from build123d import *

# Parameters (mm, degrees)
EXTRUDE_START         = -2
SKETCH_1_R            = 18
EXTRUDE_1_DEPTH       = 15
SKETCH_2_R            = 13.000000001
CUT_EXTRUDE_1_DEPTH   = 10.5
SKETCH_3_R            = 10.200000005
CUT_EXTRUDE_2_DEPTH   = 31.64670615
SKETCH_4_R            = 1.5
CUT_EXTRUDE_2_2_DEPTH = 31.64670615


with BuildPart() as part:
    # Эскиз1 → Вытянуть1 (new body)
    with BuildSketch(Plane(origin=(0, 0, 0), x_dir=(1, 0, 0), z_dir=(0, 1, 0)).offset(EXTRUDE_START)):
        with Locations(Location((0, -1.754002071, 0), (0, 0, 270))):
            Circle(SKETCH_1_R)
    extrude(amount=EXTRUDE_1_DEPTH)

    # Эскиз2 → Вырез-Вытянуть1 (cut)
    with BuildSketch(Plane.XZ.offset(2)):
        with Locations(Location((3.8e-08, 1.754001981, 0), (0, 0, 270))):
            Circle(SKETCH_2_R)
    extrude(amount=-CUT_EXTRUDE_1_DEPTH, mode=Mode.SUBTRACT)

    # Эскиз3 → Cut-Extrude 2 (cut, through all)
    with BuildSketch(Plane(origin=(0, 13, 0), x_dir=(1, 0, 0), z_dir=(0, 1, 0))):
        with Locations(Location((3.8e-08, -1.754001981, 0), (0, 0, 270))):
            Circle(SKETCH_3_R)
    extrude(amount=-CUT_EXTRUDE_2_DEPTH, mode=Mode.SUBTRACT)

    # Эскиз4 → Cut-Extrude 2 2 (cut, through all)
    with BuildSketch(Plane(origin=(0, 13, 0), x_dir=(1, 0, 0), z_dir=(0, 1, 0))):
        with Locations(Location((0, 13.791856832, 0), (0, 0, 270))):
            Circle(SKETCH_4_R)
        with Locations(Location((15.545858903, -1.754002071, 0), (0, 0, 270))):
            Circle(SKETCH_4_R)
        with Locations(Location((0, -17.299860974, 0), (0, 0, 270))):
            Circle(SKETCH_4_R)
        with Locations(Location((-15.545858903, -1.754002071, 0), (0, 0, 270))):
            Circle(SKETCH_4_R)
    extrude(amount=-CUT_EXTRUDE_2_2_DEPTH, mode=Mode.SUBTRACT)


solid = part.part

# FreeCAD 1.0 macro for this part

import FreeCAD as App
import Part
import Sketcher

doc = App.newDocument("Part")
body = doc.addObject("PartDesign::Body", "Body")

# Sketch on XZ plane
sketch1 = body.newObject("Sketcher::SketchObject", "Sketch")
sketch1.AttachmentSupport = (doc.getObject("XZ_Plane"), [""])
sketch1.MapMode = "FlatFace"
sketch1.AttachmentOffset = App.Placement(App.Vector(0, 0, 2), App.Rotation())
sketch1.addGeometry(Part.Circle(App.Vector(0, 2, 0), App.Vector(0, 0, 1), 18), False)
sketch1.addConstraint(Sketcher.Constraint("PointOnObject", 0, 3, -2))
sketch1.addConstraint(Sketcher.Constraint("Diameter", 0, 36.0))
sketch1.addConstraint(Sketcher.Constraint("DistanceY", -1, 1, 0, 3, 1.754002))
pad1 = body.newObject("PartDesign::Pad", "Pad")
pad1.Profile = sketch1
pad1.Length = 15
pad1.Reversed = True

# Sketch on XZ plane
sketch2 = body.newObject("Sketcher::SketchObject", "Sketch001")
sketch2.AttachmentSupport = (doc.getObject("XZ_Plane"), [""])
sketch2.MapMode = "FlatFace"
sketch2.AttachmentOffset = App.Placement(App.Vector(0, 0, 2), App.Rotation())
sketch2.addGeometry(Part.Circle(App.Vector(0, 2, 0), App.Vector(0, 0, 1), 13), False)
sketch2.addConstraint(Sketcher.Constraint("PointOnObject", 0, 3, -2))
sketch2.addConstraint(Sketcher.Constraint("Diameter", 0, 26.0))
sketch2.addConstraint(Sketcher.Constraint("DistanceY", -1, 1, 0, 3, 1.754002))
pocket1 = body.newObject("PartDesign::Pocket", "Pocket")
pocket1.Profile = sketch2
pocket1.Length = 10.5

# Sketch on XZ plane
sketch3 = body.newObject("Sketcher::SketchObject", "Sketch002")
sketch3.AttachmentSupport = (doc.getObject("XZ_Plane"), [""])
sketch3.MapMode = "FlatFace"
sketch3.AttachmentOffset = App.Placement(App.Vector(0, 0, -13), App.Rotation())
sketch3.addGeometry(Part.Circle(App.Vector(0, 2, 0), App.Vector(0, 0, 1), 10), False)
sketch3.addConstraint(Sketcher.Constraint("PointOnObject", 0, 3, -2))
sketch3.addConstraint(Sketcher.Constraint("Diameter", 0, 20.4))
sketch3.addConstraint(Sketcher.Constraint("DistanceY", -1, 1, 0, 3, 1.754002))
pocket2 = body.newObject("PartDesign::Pocket", "Pocket001")
pocket2.Profile = sketch3
pocket2.Type = "ThroughAll"
pocket2.Reversed = True

# Sketch on XZ plane
sketch4 = body.newObject("Sketcher::SketchObject", "Sketch003")
sketch4.AttachmentSupport = (doc.getObject("XZ_Plane"), [""])
sketch4.MapMode = "FlatFace"
sketch4.AttachmentOffset = App.Placement(App.Vector(0, 0, -13), App.Rotation())
sketch4.addGeometry(Part.Circle(App.Vector(0, -13.8, 0), App.Vector(0, 0, 1), 1.5), False)
sketch4.addGeometry(Part.Circle(App.Vector(15.5, 1.8, 0), App.Vector(0, 0, 1), 1.5), False)
sketch4.addGeometry(Part.Circle(App.Vector(0, 17.3, 0), App.Vector(0, 0, 1), 1.5), False)
sketch4.addGeometry(Part.Circle(App.Vector(-15.5, 1.8, 0), App.Vector(0, 0, 1), 1.5), False)
sketch4.addConstraint(Sketcher.Constraint("Equal", 0, 1))
sketch4.addConstraint(Sketcher.Constraint("Equal", 1, 2))
sketch4.addConstraint(Sketcher.Constraint("Equal", 2, 3))
sketch4.addConstraint(Sketcher.Constraint("Symmetric", 1, 3, 3, 3, -2))
sketch4.addConstraint(Sketcher.Constraint("PointOnObject", 0, 3, -2))
sketch4.addConstraint(Sketcher.Constraint("PointOnObject", 2, 3, -2))
sketch4.addConstraint(Sketcher.Constraint("Diameter", 0, 3.0))
sketch4.addConstraint(Sketcher.Constraint("DistanceX", -1, 1, 1, 3, 15.545859))
sketch4.addConstraint(Sketcher.Constraint("DistanceY", -1, 1, 2, 3, 17.299861))
sketch4.addConstraint(Sketcher.Constraint("DistanceY", 0, 3, 1, 3, 15.545859))
sketch4.addConstraint(Sketcher.Constraint("DistanceY", 1, 3, 2, 3, 15.545859))
pocket3 = body.newObject("PartDesign::Pocket", "Pocket002")
pocket3.Profile = sketch4
pocket3.Type = "ThroughAll"
pocket3.Reversed = True

doc.recompute()
